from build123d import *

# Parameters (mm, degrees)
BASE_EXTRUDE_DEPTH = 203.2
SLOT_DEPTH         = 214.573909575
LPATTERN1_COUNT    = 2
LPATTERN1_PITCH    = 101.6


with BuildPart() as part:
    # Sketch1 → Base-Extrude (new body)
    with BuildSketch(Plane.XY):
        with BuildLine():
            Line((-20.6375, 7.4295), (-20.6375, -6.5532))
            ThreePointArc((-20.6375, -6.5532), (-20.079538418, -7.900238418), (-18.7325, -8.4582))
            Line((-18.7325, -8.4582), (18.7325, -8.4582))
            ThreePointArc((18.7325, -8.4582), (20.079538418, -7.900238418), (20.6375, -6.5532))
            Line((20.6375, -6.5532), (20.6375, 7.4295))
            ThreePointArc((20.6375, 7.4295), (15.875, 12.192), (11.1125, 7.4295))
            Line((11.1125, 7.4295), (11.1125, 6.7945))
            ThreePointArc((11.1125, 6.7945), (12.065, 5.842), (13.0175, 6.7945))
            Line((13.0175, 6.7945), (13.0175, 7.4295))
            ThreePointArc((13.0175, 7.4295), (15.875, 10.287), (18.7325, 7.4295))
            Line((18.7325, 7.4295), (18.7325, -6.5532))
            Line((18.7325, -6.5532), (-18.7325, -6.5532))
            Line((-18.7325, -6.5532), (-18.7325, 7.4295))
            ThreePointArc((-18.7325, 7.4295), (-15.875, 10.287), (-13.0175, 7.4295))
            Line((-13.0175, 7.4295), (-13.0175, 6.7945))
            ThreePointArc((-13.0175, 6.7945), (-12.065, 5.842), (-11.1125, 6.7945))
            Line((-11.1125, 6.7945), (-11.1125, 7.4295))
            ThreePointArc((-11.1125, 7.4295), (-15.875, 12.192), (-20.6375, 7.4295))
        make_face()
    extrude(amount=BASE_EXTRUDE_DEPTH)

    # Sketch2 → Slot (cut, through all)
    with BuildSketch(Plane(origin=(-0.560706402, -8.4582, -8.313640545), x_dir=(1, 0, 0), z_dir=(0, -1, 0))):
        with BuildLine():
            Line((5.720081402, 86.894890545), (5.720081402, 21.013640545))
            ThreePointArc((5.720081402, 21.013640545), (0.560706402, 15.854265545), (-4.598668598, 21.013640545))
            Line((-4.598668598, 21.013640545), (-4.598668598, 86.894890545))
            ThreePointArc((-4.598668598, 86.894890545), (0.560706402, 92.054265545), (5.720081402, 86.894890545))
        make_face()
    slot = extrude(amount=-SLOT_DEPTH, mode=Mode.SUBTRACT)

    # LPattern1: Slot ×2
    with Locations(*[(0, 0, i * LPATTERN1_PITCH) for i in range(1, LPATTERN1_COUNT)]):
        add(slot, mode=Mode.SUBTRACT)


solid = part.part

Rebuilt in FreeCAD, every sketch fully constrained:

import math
import FreeCAD as App
import Part
import Sketcher
Q = App.Units.Quantity

doc = App.newDocument("Part")
body = doc.addObject("PartDesign::Body", "Body")

# Sketch on XY plane
sketch1 = doc.addObject("Sketcher::SketchObject", "Sketch")
body.addObject(sketch1)
sketch1.AttachmentSupport = (doc.XY_Plane, [""])
sketch1.MapMode = "FlatFace"
sketch1.addGeometry([
    Part.LineSegment(App.Vector(-20.6375, 7.4295, 0), App.Vector(-20.6375, -6.5532, 0)),  # 0
    Part.ArcOfCircle(Part.Circle(App.Vector(-18.7325, -6.5532, 0), App.Vector(0, 0, 1), 1.905), math.radians(-180), math.radians(-90)),  # 1
    Part.LineSegment(App.Vector(-18.7325, -8.4582, 0), App.Vector(18.7325, -8.4582, 0)),  # 2
    Part.ArcOfCircle(Part.Circle(App.Vector(18.7325, -6.5532, 0), App.Vector(0, 0, 1), 1.905), math.radians(-90), math.radians(0)),  # 3
    Part.LineSegment(App.Vector(20.6375, -6.5532, 0), App.Vector(20.6375, 7.4295, 0)),  # 4
    Part.ArcOfCircle(Part.Circle(App.Vector(15.875, 7.4295, 0), App.Vector(0, 0, 1), 4.7625), math.radians(0), math.radians(180)),  # 5
    Part.LineSegment(App.Vector(11.1125, 7.4295, 0), App.Vector(11.1125, 6.7945, 0)),  # 6
    Part.ArcOfCircle(Part.Circle(App.Vector(12.065, 6.7945, 0), App.Vector(0, 0, 1), 0.9525), math.radians(180), math.radians(360)),  # 7
    Part.LineSegment(App.Vector(13.0175, 6.7945, 0), App.Vector(13.0175, 7.4295, 0)),  # 8
    Part.ArcOfCircle(Part.Circle(App.Vector(15.875, 7.4295, 0), App.Vector(0, 0, 1), 2.8575), math.radians(0), math.radians(180)),  # 9
    Part.LineSegment(App.Vector(18.7325, 7.4295, 0), App.Vector(18.7325, -6.5532, 0)),  # 10
    Part.LineSegment(App.Vector(18.7325, -6.5532, 0), App.Vector(-18.7325, -6.5532, 0)),  # 11
    Part.LineSegment(App.Vector(-18.7325, -6.5532, 0), App.Vector(-18.7325, 7.4295, 0)),  # 12
    Part.ArcOfCircle(Part.Circle(App.Vector(-15.875, 7.4295, 0), App.Vector(0, 0, 1), 2.8575), math.radians(0), math.radians(180)),  # 13
    Part.LineSegment(App.Vector(-13.0175, 7.4295, 0), App.Vector(-13.0175, 6.7945, 0)),  # 14
    Part.ArcOfCircle(Part.Circle(App.Vector(-12.065, 6.7945, 0), App.Vector(0, 0, 1), 0.9525), math.radians(180), math.radians(360)),  # 15
    Part.LineSegment(App.Vector(-11.1125, 6.7945, 0), App.Vector(-11.1125, 7.4295, 0)),  # 16
    Part.ArcOfCircle(Part.Circle(App.Vector(-15.875, 7.4295, 0), App.Vector(0, 0, 1), 4.7625), math.radians(0), math.radians(180)),  # 17
], False)
sketch1.addConstraint([
    Sketcher.Constraint("Tangent", 0, 2, 1, 1),
    Sketcher.Constraint("Tangent", 1, 2, 2, 1),
    Sketcher.Constraint("Tangent", 2, 2, 3, 1),
    Sketcher.Constraint("Tangent", 3, 2, 4, 1),
    Sketcher.Constraint("Tangent", 4, 2, 5, 1),
    Sketcher.Constraint("Tangent", 5, 2, 6, 1),
    Sketcher.Constraint("Tangent", 6, 2, 7, 1),
    Sketcher.Constraint("Tangent", 7, 2, 8, 1),
    Sketcher.Constraint("Tangent", 8, 2, 9, 2),
    Sketcher.Constraint("Tangent", 9, 1, 10, 1),
    Sketcher.Constraint("Coincident", 10, 2, 11, 1),
    Sketcher.Constraint("Coincident", 11, 2, 12, 1),
    Sketcher.Constraint("Tangent", 12, 2, 13, 2),
    Sketcher.Constraint("Tangent", 13, 1, 14, 1),
    Sketcher.Constraint("Tangent", 14, 2, 15, 1),
    Sketcher.Constraint("Tangent", 15, 2, 16, 1),
    Sketcher.Constraint("Tangent", 16, 2, 17, 1),
    Sketcher.Constraint("Tangent", 17, 2, 0, 1),
    Sketcher.Constraint("Vertical", 0),
    Sketcher.Constraint("Horizontal", 2),
    Sketcher.Constraint("Vertical", 4),
    Sketcher.Constraint("Vertical", 6),
    Sketcher.Constraint("Vertical", 8),
    Sketcher.Constraint("Vertical", 10),
    Sketcher.Constraint("Horizontal", 11),
    Sketcher.Constraint("Vertical", 12),
    Sketcher.Constraint("Vertical", 14),
    Sketcher.Constraint("Vertical", 16),
    Sketcher.Constraint("Coincident", 9, 3, 5, 3),
    Sketcher.Constraint("Coincident", 17, 3, 13, 3),
    Sketcher.Constraint("Coincident", 10, 2, 3, 3),
    Sketcher.Constraint("Coincident", 11, 2, 1, 3),
    Sketcher.Constraint("Equal", 9, 13),
    Sketcher.Constraint("Symmetric", 5, 3, 13, 3, -2),
    Sketcher.Constraint("Horizontal", 7, 3, 15, 3),
    Sketcher.Constraint("Radius", 1, Q("0.075 in")),
    Sketcher.Constraint("Radius", 5, Q("0.1875 in")),
    Sketcher.Constraint("DistanceX", 13, 3, 7, 3, Q("1.1 in")),
    Sketcher.Constraint("DistanceY", 6, 2, 6, 1, Q("0.025 in")),
    Sketcher.Constraint("DistanceY", 0, 2, 0, 1, Q("0.5505 in")),
    Sketcher.Constraint("DistanceY", 1, 3, -1, 1, Q("0.258 in")),
])
pad1 = doc.addObject("PartDesign::Pad", "Pad")
body.addObject(pad1)
pad1.Profile = sketch1
pad1.Length = Q("8 in")

# Sketch on XZ plane
sketch2 = doc.addObject("Sketcher::SketchObject", "Sketch001")
body.addObject(sketch2)
sketch2.AttachmentSupport = (doc.XZ_Plane, [""])
sketch2.MapMode = "FlatFace"
sketch2.AttachmentOffset = App.Placement(App.Vector(0, 0, 0.333 * 25.4), App.Rotation())
sketch2.addGeometry([
    Part.LineSegment(App.Vector(5.159375, 12.7, 0), App.Vector(5.159375, 78.58125, 0)),
    Part.ArcOfCircle(Part.Circle(App.Vector(0, 78.58125, 0), App.Vector(0, 0, 1), 5.159375), math.radians(0), math.radians(180)),
    Part.LineSegment(App.Vector(-5.159375, 78.58125, 0), App.Vector(-5.159375, 12.7, 0)),
    Part.ArcOfCircle(Part.Circle(App.Vector(0, 12.7, 0), App.Vector(0, 0, 1), 5.159375), math.radians(180), math.radians(360)),
], False)
sketch2.addConstraint([
    Sketcher.Constraint("Tangent", 0, 2, 1, 1),
    Sketcher.Constraint("Tangent", 1, 2, 2, 1),
    Sketcher.Constraint("Tangent", 2, 2, 3, 1),
    Sketcher.Constraint("Tangent", 3, 2, 0, 1),
    Sketcher.Constraint("Vertical", 0),
    Sketcher.Constraint("Vertical", 2),
    Sketcher.Constraint("PointOnObject", 1, 3, -2),
    Sketcher.Constraint("Radius", 1, Q("0.203125 in")),
    Sketcher.Constraint("DistanceY", -1, 1, 3, 3, Q("0.5 in")),
    Sketcher.Constraint("DistanceY", 0, 1, 0, 2, Q("2.59375 in")),
])
pocket1 = doc.addObject("PartDesign::Pocket", "Pocket")
body.addObject(pocket1)
pocket1.Profile = sketch2
pocket1.Type = "ThroughAll"
doc.recompute()

linearpattern = doc.addObject("PartDesign::LinearPattern", "LinearPattern")
body.addObject(linearpattern)
linearpattern.Originals = [pocket1]
linearpattern.Direction = (doc.Z_Axis, [""])
linearpattern.Mode = "offset"
linearpattern.Offset = Q("4 in")
linearpattern.Occurrences = 2
body.Tip = linearpattern

doc.recompute()
